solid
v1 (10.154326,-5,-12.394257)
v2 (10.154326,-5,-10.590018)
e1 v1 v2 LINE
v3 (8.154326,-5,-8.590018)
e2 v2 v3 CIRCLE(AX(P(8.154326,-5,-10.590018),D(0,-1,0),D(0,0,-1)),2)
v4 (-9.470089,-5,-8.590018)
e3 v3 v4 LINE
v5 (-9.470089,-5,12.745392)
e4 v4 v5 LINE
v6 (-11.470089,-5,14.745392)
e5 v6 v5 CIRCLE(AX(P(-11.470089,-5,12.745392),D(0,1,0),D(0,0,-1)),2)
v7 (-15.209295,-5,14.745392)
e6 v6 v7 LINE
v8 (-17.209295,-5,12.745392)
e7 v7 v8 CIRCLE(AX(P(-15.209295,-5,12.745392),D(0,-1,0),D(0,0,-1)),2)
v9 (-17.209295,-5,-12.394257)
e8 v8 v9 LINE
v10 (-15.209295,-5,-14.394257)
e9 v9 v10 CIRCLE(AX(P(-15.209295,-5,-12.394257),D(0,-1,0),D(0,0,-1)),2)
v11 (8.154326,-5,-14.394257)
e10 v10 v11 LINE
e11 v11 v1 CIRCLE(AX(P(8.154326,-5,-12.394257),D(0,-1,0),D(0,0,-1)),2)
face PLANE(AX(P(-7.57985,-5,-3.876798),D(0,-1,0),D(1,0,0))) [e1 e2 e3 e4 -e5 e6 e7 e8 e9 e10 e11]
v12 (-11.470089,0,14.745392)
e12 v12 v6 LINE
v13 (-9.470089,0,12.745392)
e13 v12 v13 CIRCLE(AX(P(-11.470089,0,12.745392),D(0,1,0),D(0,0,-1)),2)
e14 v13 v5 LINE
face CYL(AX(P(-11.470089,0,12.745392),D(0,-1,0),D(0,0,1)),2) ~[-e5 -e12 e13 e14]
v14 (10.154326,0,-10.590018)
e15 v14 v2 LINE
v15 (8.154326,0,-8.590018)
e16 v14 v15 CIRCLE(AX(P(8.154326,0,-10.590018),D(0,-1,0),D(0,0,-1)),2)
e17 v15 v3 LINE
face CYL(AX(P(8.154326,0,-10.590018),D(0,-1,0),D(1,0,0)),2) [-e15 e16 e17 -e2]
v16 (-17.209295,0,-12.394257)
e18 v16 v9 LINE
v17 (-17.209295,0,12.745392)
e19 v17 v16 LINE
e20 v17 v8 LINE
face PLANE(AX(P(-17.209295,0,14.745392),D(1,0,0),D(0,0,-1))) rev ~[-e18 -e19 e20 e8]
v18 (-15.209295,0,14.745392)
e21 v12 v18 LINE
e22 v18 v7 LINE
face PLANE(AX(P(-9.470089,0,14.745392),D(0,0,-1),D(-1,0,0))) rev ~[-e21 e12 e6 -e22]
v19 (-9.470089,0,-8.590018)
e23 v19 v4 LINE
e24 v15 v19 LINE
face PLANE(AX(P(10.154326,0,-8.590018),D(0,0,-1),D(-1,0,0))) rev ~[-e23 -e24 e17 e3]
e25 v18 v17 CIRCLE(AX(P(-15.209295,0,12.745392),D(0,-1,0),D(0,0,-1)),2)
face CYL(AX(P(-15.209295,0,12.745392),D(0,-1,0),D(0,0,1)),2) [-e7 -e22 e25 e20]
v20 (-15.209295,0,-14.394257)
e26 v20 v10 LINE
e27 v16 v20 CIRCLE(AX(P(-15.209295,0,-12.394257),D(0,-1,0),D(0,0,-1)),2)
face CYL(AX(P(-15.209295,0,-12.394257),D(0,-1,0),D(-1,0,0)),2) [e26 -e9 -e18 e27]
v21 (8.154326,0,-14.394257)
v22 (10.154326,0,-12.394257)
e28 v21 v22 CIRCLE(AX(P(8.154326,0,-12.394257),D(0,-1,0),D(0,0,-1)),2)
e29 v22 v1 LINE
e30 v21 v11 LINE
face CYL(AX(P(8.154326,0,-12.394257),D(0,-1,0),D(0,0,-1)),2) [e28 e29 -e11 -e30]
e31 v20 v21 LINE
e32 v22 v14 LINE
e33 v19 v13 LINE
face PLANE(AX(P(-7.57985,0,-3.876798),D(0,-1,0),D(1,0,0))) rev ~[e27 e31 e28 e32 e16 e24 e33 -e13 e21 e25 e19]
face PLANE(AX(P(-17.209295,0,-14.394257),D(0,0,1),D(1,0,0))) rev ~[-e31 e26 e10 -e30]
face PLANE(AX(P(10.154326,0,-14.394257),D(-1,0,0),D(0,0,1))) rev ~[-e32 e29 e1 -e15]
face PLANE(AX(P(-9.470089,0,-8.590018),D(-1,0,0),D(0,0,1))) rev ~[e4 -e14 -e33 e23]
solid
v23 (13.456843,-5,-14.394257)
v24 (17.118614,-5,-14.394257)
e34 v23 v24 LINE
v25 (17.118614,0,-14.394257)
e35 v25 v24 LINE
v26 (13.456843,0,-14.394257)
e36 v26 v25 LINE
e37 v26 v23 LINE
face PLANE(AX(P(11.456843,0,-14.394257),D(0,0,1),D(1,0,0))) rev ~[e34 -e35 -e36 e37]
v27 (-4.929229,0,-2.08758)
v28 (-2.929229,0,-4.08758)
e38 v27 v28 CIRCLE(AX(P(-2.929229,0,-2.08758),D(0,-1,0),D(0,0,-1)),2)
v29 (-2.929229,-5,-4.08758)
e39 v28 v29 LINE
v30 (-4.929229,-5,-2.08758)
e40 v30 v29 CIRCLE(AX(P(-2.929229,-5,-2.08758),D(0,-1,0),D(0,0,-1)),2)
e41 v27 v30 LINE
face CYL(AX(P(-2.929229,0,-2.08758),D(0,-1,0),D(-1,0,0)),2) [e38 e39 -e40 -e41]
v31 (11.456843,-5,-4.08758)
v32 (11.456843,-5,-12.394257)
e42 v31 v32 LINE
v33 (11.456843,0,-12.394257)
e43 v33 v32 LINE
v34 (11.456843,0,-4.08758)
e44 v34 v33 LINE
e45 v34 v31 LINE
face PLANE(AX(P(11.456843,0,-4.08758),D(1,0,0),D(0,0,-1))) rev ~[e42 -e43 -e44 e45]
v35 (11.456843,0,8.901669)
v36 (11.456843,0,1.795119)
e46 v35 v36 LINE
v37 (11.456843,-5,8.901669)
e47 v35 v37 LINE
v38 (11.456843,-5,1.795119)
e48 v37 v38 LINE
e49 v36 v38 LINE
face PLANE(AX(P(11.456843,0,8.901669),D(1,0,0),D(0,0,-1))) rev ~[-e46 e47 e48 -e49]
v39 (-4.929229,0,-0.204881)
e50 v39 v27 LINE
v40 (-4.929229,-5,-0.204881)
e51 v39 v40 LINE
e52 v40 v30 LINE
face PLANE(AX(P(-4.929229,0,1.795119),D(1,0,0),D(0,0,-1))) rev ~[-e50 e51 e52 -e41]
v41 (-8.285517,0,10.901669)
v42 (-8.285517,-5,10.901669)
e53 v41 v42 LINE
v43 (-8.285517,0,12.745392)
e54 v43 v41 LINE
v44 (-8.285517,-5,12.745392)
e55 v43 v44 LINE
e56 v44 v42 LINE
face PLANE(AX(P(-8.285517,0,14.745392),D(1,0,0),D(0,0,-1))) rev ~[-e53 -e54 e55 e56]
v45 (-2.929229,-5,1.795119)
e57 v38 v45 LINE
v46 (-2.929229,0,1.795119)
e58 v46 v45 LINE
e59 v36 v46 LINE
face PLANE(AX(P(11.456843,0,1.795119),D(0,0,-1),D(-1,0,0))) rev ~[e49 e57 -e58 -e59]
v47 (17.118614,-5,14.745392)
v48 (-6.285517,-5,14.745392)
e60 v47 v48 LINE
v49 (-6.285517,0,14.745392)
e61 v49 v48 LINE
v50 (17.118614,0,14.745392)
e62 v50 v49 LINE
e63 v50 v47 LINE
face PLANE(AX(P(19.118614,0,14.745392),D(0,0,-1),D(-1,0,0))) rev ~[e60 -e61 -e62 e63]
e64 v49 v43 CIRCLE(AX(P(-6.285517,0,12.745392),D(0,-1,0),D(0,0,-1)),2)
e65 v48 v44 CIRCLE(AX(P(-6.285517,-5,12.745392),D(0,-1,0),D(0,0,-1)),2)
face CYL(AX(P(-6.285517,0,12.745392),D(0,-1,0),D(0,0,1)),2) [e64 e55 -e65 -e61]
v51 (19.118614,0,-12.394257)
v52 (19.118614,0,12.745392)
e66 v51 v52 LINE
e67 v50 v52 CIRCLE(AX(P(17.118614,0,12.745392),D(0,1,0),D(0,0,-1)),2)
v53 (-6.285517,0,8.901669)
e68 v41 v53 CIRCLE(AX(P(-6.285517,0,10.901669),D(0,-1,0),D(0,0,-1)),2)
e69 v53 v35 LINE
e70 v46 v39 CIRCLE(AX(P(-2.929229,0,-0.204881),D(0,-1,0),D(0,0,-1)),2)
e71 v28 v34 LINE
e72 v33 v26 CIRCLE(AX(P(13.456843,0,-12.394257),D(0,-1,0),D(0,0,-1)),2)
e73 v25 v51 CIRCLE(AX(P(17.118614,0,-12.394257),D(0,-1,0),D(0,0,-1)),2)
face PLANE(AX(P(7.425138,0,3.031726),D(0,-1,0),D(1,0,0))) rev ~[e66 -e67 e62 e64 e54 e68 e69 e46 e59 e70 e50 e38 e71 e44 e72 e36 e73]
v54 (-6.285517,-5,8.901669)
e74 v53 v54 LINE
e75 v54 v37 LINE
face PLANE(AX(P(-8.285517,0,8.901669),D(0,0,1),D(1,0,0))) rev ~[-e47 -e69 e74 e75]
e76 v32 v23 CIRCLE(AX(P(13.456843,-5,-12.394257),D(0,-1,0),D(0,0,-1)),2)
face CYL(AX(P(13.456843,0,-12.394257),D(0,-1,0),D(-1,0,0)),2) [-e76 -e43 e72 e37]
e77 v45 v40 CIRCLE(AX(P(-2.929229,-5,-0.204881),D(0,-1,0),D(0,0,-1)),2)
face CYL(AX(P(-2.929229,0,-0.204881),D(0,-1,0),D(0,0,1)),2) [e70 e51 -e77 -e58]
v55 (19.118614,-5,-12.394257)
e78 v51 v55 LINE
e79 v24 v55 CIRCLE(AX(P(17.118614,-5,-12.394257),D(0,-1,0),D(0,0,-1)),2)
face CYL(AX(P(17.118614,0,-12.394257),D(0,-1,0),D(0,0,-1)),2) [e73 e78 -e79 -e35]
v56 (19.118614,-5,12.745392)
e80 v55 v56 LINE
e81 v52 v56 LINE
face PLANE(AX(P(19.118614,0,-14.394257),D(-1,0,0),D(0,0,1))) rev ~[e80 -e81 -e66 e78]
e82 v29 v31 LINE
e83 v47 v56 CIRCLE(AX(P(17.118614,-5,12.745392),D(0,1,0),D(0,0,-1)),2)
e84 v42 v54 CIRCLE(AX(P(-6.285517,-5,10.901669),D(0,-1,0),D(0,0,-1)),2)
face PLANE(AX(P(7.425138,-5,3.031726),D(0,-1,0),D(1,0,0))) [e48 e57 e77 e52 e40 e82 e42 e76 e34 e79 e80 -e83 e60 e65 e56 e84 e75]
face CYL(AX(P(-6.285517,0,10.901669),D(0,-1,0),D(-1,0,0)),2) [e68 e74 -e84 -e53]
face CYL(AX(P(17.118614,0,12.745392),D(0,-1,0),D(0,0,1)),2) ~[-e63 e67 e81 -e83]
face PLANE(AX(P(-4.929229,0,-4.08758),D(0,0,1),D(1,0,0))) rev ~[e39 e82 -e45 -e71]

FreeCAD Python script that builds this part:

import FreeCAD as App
import Part
import Sketcher


def edges_at(feature, points):
    """Names of the edges that pass closest to the given points."""
    edges = feature.Shape.Edges
    near = lambda p: min(range(len(edges)), key=lambda i: edges[i].distToShape(Part.Vertex(*p))[0])
    return sorted({f"Edge{near(p) + 1}" for p in points})

doc = App.newDocument("Part")
body = doc.addObject("PartDesign::Body", "Body")
body.AllowCompound = True

# Sketch on XZ plane
sketch1 = body.newObject("Sketcher::SketchObject", "Sketch")
sketch1.AttachmentSupport = (doc.getObject("XZ_Plane"), [""])
sketch1.MapMode = "FlatFace"
sketch1.addGeometry([
    Part.LineSegment(App.Vector(-9, 15, 0), App.Vector(-17, 15, 0)),  # 0
    Part.LineSegment(App.Vector(-17, 15, 0), App.Vector(-17, -14, 0)),  # 1
    Part.LineSegment(App.Vector(-17, -14, 0), App.Vector(10, -14, 0)),  # 2
    Part.LineSegment(App.Vector(10, -14, 0), App.Vector(10, -9, 0)),  # 3
    Part.LineSegment(App.Vector(10, -9, 0), App.Vector(-9, -9, 0)),  # 4
    Part.LineSegment(App.Vector(-9, -9, 0), App.Vector(-9, 15, 0)),  # 5
    Part.LineSegment(App.Vector(19, 15, 0), App.Vector(-8, 15, 0)),  # 6
    Part.LineSegment(App.Vector(-8, 15, 0), App.Vector(-8, 9, 0)),  # 7
    Part.LineSegment(App.Vector(-8, 9, 0), App.Vector(11, 9, 0)),  # 8
    Part.LineSegment(App.Vector(11, 9, 0), App.Vector(11, 2, 0)),  # 9
    Part.LineSegment(App.Vector(11, 2, 0), App.Vector(-5, 2, 0)),  # 10
    Part.LineSegment(App.Vector(-5, 2, 0), App.Vector(-5, -4, 0)),  # 11
    Part.LineSegment(App.Vector(-5, -4, 0), App.Vector(11, -4, 0)),  # 12
    Part.LineSegment(App.Vector(11, -4, 0), App.Vector(11, -14, 0)),  # 13
    Part.LineSegment(App.Vector(11, -14, 0), App.Vector(19, -14, 0)),  # 14
    Part.LineSegment(App.Vector(19, -14, 0), App.Vector(19, 15, 0)),  # 15
], False)
sketch1.addConstraint([
    Sketcher.Constraint("Coincident", 0, 2, 1, 1),
    Sketcher.Constraint("Coincident", 1, 2, 2, 1),
    Sketcher.Constraint("Coincident", 2, 2, 3, 1),
    Sketcher.Constraint("Coincident", 3, 2, 4, 1),
    Sketcher.Constraint("Coincident", 4, 2, 5, 1),
    Sketcher.Constraint("Coincident", 5, 2, 0, 1),
    Sketcher.Constraint("Coincident", 6, 2, 7, 1),
    Sketcher.Constraint("Coincident", 7, 2, 8, 1),
    Sketcher.Constraint("Coincident", 8, 2, 9, 1),
    Sketcher.Constraint("Coincident", 9, 2, 10, 1),
    Sketcher.Constraint("Coincident", 10, 2, 11, 1),
    Sketcher.Constraint("Coincident", 11, 2, 12, 1),
    Sketcher.Constraint("Coincident", 12, 2, 13, 1),
    Sketcher.Constraint("Coincident", 13, 2, 14, 1),
    Sketcher.Constraint("Coincident", 14, 2, 15, 1),
    Sketcher.Constraint("Coincident", 15, 2, 6, 1),
    Sketcher.Constraint("Horizontal", 0),
    Sketcher.Constraint("Vertical", 1),
    Sketcher.Constraint("Horizontal", 2),
    Sketcher.Constraint("Vertical", 3),
    Sketcher.Constraint("Horizontal", 4),
    Sketcher.Constraint("Vertical", 5),
    Sketcher.Constraint("Horizontal", 6),
    Sketcher.Constraint("Vertical", 7),
    Sketcher.Constraint("Horizontal", 8),
    Sketcher.Constraint("Vertical", 9),
    Sketcher.Constraint("Horizontal", 10),
    Sketcher.Constraint("Vertical", 11),
    Sketcher.Constraint("Horizontal", 12),
    Sketcher.Constraint("Vertical", 13),
    Sketcher.Constraint("Horizontal", 14),
    Sketcher.Constraint("Vertical", 15),
    Sketcher.Constraint("Horizontal", 5, 2, 6, 2),
    Sketcher.Constraint("Horizontal", 2, 2, 13, 2),
    Sketcher.Constraint("Vertical", 9, 2, 12, 2),
    Sketcher.Constraint("DistanceY", 11, 2, 11, 1, 5.882699),
    Sketcher.Constraint("DistanceX", 2, 1, 2, 2, 27.363621),
    Sketcher.Constraint("DistanceX", 6, 2, 6, 1, 27.404131),
    Sketcher.Constraint("DistanceX", 8, 1, 8, 2, 19.74236),
    Sketcher.Constraint("DistanceX", 10, 2, 10, 1, 16.386072),
    Sketcher.Constraint("DistanceY", 1, 2, 1, 1, 29.139649),
    Sketcher.Constraint("DistanceY", 3, 1, 3, 2, 5.804239),
    Sketcher.Constraint("DistanceY", 9, 2, 9, 1, 7.10655),
    Sketcher.Constraint("DistanceX", 0, 2, 0, 1, 7.739206),
    Sketcher.Constraint("DistanceY", 7, 2, 7, 1, 5.843723),
    Sketcher.Constraint("DistanceX", 4, 2, -1, 1, 9.470089),
    Sketcher.Constraint("DistanceY", -1, 1, 7, 2, 8.901669),
    Sketcher.Constraint("DistanceX", 10, 2, -1, 1, 4.929229),
])
pad1 = body.newObject("PartDesign::Pad", "Pad")
pad1.Profile = sketch1
pad1.Length = 5
doc.recompute()

fillet = body.newObject("PartDesign::Fillet", "Fillet")
fillet.Base = (pad1, edges_at(pad1, [
    (-17.209, -2.5, 14.745),
    (-9.47, -2.5, 14.745),
    (-17.209, -2.5, -14.394),
    (10.154, -2.5, -14.394),
    (10.154, -2.5, -8.59),
    (11.457, -2.5, -14.394),
    (19.119, -2.5, -14.394),
    (19.119, -2.5, 14.745),
    (-4.929, -2.5, -4.088),
    (-4.929, -2.5, 1.795),
    (-8.286, -2.5, 8.902),
    (-8.286, -2.5, 14.745),
]))
fillet.Radius = 2

doc.recompute()
